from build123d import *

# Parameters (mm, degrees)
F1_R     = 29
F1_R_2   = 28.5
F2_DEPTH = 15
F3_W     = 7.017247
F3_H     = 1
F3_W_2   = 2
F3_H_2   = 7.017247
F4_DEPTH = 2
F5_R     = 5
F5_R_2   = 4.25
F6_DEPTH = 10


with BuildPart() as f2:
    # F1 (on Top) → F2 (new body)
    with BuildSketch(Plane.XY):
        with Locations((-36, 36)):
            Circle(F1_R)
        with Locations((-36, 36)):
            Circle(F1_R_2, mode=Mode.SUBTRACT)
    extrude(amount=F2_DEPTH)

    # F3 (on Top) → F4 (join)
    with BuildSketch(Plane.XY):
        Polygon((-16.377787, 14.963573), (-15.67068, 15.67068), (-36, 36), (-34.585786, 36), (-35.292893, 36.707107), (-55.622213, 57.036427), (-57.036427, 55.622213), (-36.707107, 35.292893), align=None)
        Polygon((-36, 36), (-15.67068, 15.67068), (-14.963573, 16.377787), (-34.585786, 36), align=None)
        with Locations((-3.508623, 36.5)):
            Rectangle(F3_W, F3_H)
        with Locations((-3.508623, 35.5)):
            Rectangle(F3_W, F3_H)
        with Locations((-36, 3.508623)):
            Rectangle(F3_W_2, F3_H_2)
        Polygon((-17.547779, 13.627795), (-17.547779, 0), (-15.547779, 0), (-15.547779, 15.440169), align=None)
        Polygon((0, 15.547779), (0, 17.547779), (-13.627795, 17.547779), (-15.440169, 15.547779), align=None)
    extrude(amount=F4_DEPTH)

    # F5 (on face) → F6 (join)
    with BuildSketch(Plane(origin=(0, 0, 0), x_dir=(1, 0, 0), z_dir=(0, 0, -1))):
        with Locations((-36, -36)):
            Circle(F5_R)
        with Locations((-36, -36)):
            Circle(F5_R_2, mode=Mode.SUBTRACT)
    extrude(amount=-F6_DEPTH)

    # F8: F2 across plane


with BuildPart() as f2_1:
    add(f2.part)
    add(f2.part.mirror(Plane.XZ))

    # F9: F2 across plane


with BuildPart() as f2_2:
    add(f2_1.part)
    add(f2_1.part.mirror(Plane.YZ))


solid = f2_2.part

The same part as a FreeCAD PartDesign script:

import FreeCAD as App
import Part
import Sketcher

V = App.Vector
Q = App.Units.Quantity


def add_polygon(sketch, points):
    """Adds a closed chain of lines whose ends are joined by coincident constraints."""
    first, n = sketch.GeometryCount, len(points)
    for a, b in zip(points, points[1:] + points[:1]):
        sketch.addGeometry(Part.LineSegment(App.Vector(*a, 0), App.Vector(*b, 0)), False)
    for i in range(n):
        sketch.addConstraint(Sketcher.Constraint("Coincident", first + i, 2, first + (i + 1) % n, 1))

doc = App.newDocument("Part")
params = doc.addObject("Spreadsheet::Sheet", "Params")
for row, (alias, value) in enumerate([
    ("sketch1_diameter", "58 mm"),
    ("sketch1_diameter2", "57 mm"),
    ("pad1_length", "15 mm"),
    ("sketch2_width", "2 mm"),
    ("sketch2_length", "2.000001 mm"),
    ("sketch2_length2", "57.5 mm"),
    ("pad2_length", "2 mm"),
    ("sketch3_diameter", "10 mm"),
    ("sketch3_diameter2", "8.5 mm"),
    ("pad3_length", "10 mm"),
], start=1):
    params.set(f"A{row}", alias)
    params.set(f"B{row}", "=" + value)
    params.setAlias(f"B{row}", alias)

body = doc.addObject("PartDesign::Body", "Body")

# Sketch on XY plane
sketch1 = doc.addObject("Sketcher::SketchObject", "Sketch")
body.addObject(sketch1)
sketch1.AttachmentSupport = (doc.XY_Plane, [""])
sketch1.MapMode = "FlatFace"
sketch1.addGeometry([
    Part.Circle(V(-36, 36, 0), V(0, 0, 1), 29),
    Part.Circle(V(-36, 36, 0), V(0, 0, 1), 28),
], False)
sketch1.addConstraint([
    Sketcher.Constraint("Coincident", 1, 3, 0, 3),
    Sketcher.Constraint("Diameter", 0, Q("58 mm")),
    Sketcher.Constraint("Diameter", 1, Q("57 mm")),
    Sketcher.Constraint("DistanceX", 0, 3, -1, 1, Q("36 mm")),
    Sketcher.Constraint("DistanceY", -1, 1, 0, 3, Q("36 mm")),
])
sketch1.setExpression("Constraints[1]", "Params.sketch1_diameter")
sketch1.setExpression("Constraints[2]", "Params.sketch1_diameter2")
pad1 = doc.addObject("PartDesign::Pad", "Pad")
body.addObject(pad1)
pad1.Profile = sketch1
pad1.setExpression("Length", "Params.pad1_length")

# Sketch on XY plane
sketch2 = doc.addObject("Sketcher::SketchObject", "Sketch001")
body.addObject(sketch2)
sketch2.AttachmentSupport = (doc.XY_Plane, [""])
sketch2.MapMode = "FlatFace"
add_polygon(sketch2, [(-16.4, 15), (-15, 16.4), (-55.6, 57), (-57, 55.6)])  # lines 0-3
add_polygon(sketch2, [(-7, 37), (-7, 35), (0, 35), (0, 37)])  # lines 4-7
add_polygon(sketch2, [(-37, 7), (-37, 0), (-35, 0), (-35, 7)])  # lines 8-11
add_polygon(sketch2, [(-17.5, 13.6), (-17.5, 0), (-15.5, 0), (-15.5, 15.4)])  # lines 12-15
add_polygon(sketch2, [(0, 15.5), (0, 17.5), (-13.6, 17.5), (-15.4, 15.5)])  # lines 16-19
sketch2.addConstraint([
    Sketcher.Constraint("Vertical", 4),
    Sketcher.Constraint("Horizontal", 5),
    Sketcher.Constraint("Vertical", 6),
    Sketcher.Constraint("Horizontal", 7),
    Sketcher.Constraint("Vertical", 8),
    Sketcher.Constraint("Horizontal", 9),
    Sketcher.Constraint("Vertical", 10),
    Sketcher.Constraint("Horizontal", 11),
    Sketcher.Constraint("Vertical", 12),
    Sketcher.Constraint("Horizontal", 13),
    Sketcher.Constraint("Vertical", 14),
    Sketcher.Constraint("Vertical", 16),
    Sketcher.Constraint("Horizontal", 17),
    Sketcher.Constraint("Horizontal", 19),
    Sketcher.Constraint("PointOnObject", 5, 2, -2),
    Sketcher.Constraint("PointOnObject", 8, 2, -1),
    Sketcher.Constraint("PointOnObject", 12, 2, -1),
    Sketcher.Constraint("PointOnObject", 16, 2, -2),
    Sketcher.Constraint("Perpendicular", 0, 1),
    Sketcher.Constraint("Perpendicular", 1, 2),
    Sketcher.Constraint("Perpendicular", 2, 3),
    Sketcher.Constraint("Equal", 11, 13),
    Sketcher.Constraint("Equal", 13, 4),
    Sketcher.Constraint("Equal", 7, 8),
    Sketcher.Constraint("Equal", 17, 12),
    Sketcher.Constraint("Equal", 19, 14),
    Sketcher.Constraint("Equal", 6, 16),
    Sketcher.Constraint("DistanceX", 9, 1, 9, 2, Q("2 mm")),
    Sketcher.Constraint("Angle", 0, Q("45 deg")),
    Sketcher.Constraint("Distance", 0, Q("2.000001 mm")),
    Sketcher.Constraint("DistanceY", -1, 1, 4, 2, Q("35 mm")),
    Sketcher.Constraint("DistanceX", 8, 2, -1, 1, Q("37 mm")),
    Sketcher.Constraint("Distance", 1, Q("57.5 mm")),
    Sketcher.Constraint("DistanceX", 19, 1, 19, 2, Q("15.440169 mm")),
    Sketcher.Constraint("Distance", 15, Q("2.699018 mm")),
    Sketcher.Constraint("DistanceX", 5, 1, 5, 2, Q("7.017247 mm")),
    Sketcher.Constraint("DistanceX", 12, 2, -1, 1, Q("17.547779 mm")),
    Sketcher.Constraint("DistanceY", -1, 1, 16, 2, Q("17.547779 mm")),
    Sketcher.Constraint("DistanceX", 3, 2, 4, 2, Q("9.360541 mm")),
    Sketcher.Constraint("DistanceY", 10, 2, 0, 2, Q("9.360541 mm")),
])
sketch2.setExpression("Constraints[47]", "Params.sketch2_width")
sketch2.setExpression("Constraints[49]", "Params.sketch2_length")
sketch2.setExpression("Constraints[52]", "Params.sketch2_length2")
pad2 = doc.addObject("PartDesign::Pad", "Pad001")
body.addObject(pad2)
pad2.Profile = sketch2
pad2.setExpression("Length", "Params.pad2_length")

# Sketch on XY plane
sketch3 = doc.addObject("Sketcher::SketchObject", "Sketch002")
body.addObject(sketch3)
sketch3.AttachmentSupport = (doc.XY_Plane, [""])
sketch3.MapMode = "FlatFace"
sketch3.addGeometry([
    Part.Circle(V(-36, 36, 0), V(0, 0, 1), 5),
    Part.Circle(V(-36, 36, 0), V(0, 0, 1), 4.2),
], False)
sketch3.addConstraint([
    Sketcher.Constraint("Coincident", 1, 3, 0, 3),
    Sketcher.Constraint("Diameter", 0, Q("10 mm")),
    Sketcher.Constraint("Diameter", 1, Q("8.5 mm")),
    Sketcher.Constraint("DistanceX", 0, 3, -1, 1, Q("36 mm")),
    Sketcher.Constraint("DistanceY", -1, 1, 0, 3, Q("36 mm")),
])
sketch3.setExpression("Constraints[1]", "Params.sketch3_diameter")
sketch3.setExpression("Constraints[2]", "Params.sketch3_diameter2")
pad3 = doc.addObject("PartDesign::Pad", "Pad002")
body.addObject(pad3)
pad3.Profile = sketch3
pad3.setExpression("Length", "Params.pad3_length")
body2 = doc.addObject("PartDesign::Body", "Body001")
doc.recompute()

body2.BaseFeature = body
doc.recompute()

mirroring = doc.addObject("Part::Mirroring", "Mirroring")
mirroring.Source = body
mirroring.Base = V(0, 0, 0)
mirroring.Normal = V(0, -1, 0)
body3 = doc.addObject("PartDesign::Body", "Body002")
body3.BaseFeature = mirroring
boolean = doc.addObject("PartDesign::Boolean", "Boolean")
body2.addObject(boolean)
boolean.Type = "Fuse"
boolean.addObjects([body3])
doc.recompute()
body4 = doc.addObject("PartDesign::Body", "Body003")
doc.recompute()

body4.BaseFeature = body2
doc.recompute()

mirroring2 = doc.addObject("Part::Mirroring", "Mirroring001")
mirroring2.Source = body2
mirroring2.Base = V(0, 0, 0)
mirroring2.Normal = V(1, 0, 0)
body5 = doc.addObject("PartDesign::Body", "Body004")
body5.BaseFeature = mirroring2
boolean2 = doc.addObject("PartDesign::Boolean", "Boolean001")
body4.addObject(boolean2)
boolean2.Type = "Fuse"
boolean2.addObjects([body5])
doc.recompute()
mirroring.Visibility = False
mirroring2.Visibility = False

doc.recompute()
